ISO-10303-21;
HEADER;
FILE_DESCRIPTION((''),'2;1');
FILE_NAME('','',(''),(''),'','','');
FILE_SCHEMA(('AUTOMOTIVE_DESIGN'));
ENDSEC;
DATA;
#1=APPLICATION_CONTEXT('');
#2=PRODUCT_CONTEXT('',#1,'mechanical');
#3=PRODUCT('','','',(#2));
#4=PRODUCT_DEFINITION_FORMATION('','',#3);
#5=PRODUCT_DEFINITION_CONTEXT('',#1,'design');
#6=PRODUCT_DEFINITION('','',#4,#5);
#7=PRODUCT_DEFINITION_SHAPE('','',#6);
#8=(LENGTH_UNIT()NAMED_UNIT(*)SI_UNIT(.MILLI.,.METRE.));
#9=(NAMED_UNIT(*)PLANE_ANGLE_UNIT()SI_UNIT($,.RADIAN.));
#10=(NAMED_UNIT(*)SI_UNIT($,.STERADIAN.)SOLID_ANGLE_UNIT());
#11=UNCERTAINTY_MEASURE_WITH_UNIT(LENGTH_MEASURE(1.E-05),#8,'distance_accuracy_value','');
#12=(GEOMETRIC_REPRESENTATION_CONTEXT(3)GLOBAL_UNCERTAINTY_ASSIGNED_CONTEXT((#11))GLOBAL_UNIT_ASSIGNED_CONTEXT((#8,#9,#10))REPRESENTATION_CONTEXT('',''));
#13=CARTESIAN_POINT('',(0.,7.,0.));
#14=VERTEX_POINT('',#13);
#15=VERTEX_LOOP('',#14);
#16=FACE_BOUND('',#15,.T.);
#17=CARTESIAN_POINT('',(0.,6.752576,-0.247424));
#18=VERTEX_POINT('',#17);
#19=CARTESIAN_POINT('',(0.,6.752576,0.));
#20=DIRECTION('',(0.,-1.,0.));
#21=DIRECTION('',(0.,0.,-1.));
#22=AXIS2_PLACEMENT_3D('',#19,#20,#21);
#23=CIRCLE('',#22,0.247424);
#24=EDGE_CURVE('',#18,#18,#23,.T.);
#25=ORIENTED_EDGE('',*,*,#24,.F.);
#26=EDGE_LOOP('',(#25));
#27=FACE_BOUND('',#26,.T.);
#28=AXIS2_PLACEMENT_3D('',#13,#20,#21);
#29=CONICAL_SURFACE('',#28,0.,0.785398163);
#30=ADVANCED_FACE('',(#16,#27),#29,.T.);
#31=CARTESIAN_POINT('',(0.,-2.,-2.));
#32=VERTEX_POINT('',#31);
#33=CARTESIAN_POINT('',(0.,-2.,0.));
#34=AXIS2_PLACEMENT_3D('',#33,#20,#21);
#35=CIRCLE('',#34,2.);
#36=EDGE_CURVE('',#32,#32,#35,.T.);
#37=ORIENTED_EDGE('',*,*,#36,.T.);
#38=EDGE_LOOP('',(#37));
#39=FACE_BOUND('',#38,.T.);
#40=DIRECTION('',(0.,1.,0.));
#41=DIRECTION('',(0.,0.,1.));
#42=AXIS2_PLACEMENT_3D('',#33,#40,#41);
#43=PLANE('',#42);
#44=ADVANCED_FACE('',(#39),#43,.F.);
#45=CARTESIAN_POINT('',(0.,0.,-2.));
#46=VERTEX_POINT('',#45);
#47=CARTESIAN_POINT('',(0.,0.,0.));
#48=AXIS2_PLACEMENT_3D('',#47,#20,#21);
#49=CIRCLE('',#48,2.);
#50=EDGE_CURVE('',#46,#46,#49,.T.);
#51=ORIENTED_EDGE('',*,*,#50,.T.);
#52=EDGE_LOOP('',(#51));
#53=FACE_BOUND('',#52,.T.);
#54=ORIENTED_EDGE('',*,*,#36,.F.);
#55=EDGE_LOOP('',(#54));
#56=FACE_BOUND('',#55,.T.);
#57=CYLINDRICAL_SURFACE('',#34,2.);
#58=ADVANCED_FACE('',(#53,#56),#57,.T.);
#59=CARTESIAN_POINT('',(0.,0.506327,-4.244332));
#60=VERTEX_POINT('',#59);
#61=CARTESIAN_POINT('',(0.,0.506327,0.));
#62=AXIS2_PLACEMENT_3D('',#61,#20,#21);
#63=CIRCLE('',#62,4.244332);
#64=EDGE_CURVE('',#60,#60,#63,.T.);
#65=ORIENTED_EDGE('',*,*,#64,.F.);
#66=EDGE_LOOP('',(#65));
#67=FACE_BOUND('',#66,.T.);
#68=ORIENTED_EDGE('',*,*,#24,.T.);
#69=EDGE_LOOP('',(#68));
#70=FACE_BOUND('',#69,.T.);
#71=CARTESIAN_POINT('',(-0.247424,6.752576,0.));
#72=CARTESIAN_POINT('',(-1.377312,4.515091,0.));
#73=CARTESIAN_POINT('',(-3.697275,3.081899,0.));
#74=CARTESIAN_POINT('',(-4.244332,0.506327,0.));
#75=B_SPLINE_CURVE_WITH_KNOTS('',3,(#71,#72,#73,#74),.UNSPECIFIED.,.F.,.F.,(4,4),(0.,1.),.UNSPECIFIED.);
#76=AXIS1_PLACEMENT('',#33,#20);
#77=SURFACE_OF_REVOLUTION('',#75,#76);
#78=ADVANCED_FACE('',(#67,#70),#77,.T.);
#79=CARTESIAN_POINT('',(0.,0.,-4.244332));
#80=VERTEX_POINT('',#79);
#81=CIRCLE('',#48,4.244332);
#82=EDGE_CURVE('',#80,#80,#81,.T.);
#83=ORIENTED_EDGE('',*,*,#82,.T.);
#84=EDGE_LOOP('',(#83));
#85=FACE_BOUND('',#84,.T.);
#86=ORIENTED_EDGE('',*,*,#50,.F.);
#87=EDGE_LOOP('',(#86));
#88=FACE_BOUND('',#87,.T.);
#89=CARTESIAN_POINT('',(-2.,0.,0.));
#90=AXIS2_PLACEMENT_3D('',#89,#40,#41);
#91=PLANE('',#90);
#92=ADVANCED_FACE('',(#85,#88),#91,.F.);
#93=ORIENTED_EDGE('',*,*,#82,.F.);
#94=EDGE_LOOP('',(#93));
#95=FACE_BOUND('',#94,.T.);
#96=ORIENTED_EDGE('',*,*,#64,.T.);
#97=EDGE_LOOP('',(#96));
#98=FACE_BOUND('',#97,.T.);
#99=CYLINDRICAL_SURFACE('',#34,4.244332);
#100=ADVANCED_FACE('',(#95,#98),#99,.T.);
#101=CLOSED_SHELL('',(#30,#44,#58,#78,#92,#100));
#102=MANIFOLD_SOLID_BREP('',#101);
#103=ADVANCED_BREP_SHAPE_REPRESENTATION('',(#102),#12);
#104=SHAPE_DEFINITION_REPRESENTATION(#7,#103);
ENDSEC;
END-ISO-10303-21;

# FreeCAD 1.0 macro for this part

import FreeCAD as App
import Part
import Sketcher
Q = App.Units.Quantity

doc = App.newDocument("Part")
body = doc.addObject("PartDesign::Body", "Body")

# Sketch on XY plane
sketch1 = body.newObject("Sketcher::SketchObject", "Sketch")
sketch1.AttachmentSupport = (doc.getObject("XY_Plane"), [""])
sketch1.MapMode = "FlatFace"
sketch1.addGeometry([
    Part.LineSegment(App.Vector(-2, -2, 0), App.Vector(0, -2, 0)),  # 0
    Part.LineSegment(App.Vector(0, -2, 0), App.Vector(0, 7, 0)),  # 1
    Part.LineSegment(App.Vector(0, 7, 0), App.Vector(-0.247424, 6.752576, 0)),  # 2
    Part.BSplineCurve([App.Vector(-0.247424, 6.752576, 0), App.Vector(-1.377312, 4.515091, 0), App.Vector(-3.697275, 3.081899, 0), App.Vector(-4.244332, 0.506327, 0)], [4, 4], [0, 1], False, 3, [1, 1, 1, 1], False),  # 3
    Part.LineSegment(App.Vector(-4.244332, 0.506327, 0), App.Vector(-4.244332, 0, 0)),  # 4
    Part.LineSegment(App.Vector(-4.244332, 0, 0), App.Vector(-2, 0, 0)),  # 5
    Part.LineSegment(App.Vector(-2, 0, 0), App.Vector(-2, -2, 0)),  # 6
], False)
sketch1.addConstraint([
    Sketcher.Constraint("Block", 3),
    Sketcher.Constraint("Coincident", 0, 2, 1, 1),
    Sketcher.Constraint("Coincident", 1, 2, 2, 1),
    Sketcher.Constraint("Coincident", 2, 2, 3, 1),
    Sketcher.Constraint("Coincident", 3, 2, 4, 1),
    Sketcher.Constraint("Coincident", 4, 2, 5, 1),
    Sketcher.Constraint("Coincident", 5, 2, 6, 1),
    Sketcher.Constraint("Coincident", 6, 2, 0, 1),
    Sketcher.Constraint("Horizontal", 0),
    Sketcher.Constraint("Vertical", 1),
    Sketcher.Constraint("Vertical", 4),
    Sketcher.Constraint("Horizontal", 5),
    Sketcher.Constraint("Vertical", 6),
    Sketcher.Constraint("PointOnObject", 0, 2, -2),
    Sketcher.Constraint("PointOnObject", 4, 2, -1),
    Sketcher.Constraint("Equal", 0, 6),
    Sketcher.Constraint("DistanceX", 0, 1, 0, 2, Q("2 mm")),
    Sketcher.Constraint("DistanceY", 1, 1, 1, 2, Q("9 mm")),
])
revolution = body.newObject("PartDesign::Revolution", "Revolution")
revolution.Profile = sketch1
revolution.ReferenceAxis = (sketch1, ["V_Axis"])
revolution.Angle = 360

doc.recompute()
